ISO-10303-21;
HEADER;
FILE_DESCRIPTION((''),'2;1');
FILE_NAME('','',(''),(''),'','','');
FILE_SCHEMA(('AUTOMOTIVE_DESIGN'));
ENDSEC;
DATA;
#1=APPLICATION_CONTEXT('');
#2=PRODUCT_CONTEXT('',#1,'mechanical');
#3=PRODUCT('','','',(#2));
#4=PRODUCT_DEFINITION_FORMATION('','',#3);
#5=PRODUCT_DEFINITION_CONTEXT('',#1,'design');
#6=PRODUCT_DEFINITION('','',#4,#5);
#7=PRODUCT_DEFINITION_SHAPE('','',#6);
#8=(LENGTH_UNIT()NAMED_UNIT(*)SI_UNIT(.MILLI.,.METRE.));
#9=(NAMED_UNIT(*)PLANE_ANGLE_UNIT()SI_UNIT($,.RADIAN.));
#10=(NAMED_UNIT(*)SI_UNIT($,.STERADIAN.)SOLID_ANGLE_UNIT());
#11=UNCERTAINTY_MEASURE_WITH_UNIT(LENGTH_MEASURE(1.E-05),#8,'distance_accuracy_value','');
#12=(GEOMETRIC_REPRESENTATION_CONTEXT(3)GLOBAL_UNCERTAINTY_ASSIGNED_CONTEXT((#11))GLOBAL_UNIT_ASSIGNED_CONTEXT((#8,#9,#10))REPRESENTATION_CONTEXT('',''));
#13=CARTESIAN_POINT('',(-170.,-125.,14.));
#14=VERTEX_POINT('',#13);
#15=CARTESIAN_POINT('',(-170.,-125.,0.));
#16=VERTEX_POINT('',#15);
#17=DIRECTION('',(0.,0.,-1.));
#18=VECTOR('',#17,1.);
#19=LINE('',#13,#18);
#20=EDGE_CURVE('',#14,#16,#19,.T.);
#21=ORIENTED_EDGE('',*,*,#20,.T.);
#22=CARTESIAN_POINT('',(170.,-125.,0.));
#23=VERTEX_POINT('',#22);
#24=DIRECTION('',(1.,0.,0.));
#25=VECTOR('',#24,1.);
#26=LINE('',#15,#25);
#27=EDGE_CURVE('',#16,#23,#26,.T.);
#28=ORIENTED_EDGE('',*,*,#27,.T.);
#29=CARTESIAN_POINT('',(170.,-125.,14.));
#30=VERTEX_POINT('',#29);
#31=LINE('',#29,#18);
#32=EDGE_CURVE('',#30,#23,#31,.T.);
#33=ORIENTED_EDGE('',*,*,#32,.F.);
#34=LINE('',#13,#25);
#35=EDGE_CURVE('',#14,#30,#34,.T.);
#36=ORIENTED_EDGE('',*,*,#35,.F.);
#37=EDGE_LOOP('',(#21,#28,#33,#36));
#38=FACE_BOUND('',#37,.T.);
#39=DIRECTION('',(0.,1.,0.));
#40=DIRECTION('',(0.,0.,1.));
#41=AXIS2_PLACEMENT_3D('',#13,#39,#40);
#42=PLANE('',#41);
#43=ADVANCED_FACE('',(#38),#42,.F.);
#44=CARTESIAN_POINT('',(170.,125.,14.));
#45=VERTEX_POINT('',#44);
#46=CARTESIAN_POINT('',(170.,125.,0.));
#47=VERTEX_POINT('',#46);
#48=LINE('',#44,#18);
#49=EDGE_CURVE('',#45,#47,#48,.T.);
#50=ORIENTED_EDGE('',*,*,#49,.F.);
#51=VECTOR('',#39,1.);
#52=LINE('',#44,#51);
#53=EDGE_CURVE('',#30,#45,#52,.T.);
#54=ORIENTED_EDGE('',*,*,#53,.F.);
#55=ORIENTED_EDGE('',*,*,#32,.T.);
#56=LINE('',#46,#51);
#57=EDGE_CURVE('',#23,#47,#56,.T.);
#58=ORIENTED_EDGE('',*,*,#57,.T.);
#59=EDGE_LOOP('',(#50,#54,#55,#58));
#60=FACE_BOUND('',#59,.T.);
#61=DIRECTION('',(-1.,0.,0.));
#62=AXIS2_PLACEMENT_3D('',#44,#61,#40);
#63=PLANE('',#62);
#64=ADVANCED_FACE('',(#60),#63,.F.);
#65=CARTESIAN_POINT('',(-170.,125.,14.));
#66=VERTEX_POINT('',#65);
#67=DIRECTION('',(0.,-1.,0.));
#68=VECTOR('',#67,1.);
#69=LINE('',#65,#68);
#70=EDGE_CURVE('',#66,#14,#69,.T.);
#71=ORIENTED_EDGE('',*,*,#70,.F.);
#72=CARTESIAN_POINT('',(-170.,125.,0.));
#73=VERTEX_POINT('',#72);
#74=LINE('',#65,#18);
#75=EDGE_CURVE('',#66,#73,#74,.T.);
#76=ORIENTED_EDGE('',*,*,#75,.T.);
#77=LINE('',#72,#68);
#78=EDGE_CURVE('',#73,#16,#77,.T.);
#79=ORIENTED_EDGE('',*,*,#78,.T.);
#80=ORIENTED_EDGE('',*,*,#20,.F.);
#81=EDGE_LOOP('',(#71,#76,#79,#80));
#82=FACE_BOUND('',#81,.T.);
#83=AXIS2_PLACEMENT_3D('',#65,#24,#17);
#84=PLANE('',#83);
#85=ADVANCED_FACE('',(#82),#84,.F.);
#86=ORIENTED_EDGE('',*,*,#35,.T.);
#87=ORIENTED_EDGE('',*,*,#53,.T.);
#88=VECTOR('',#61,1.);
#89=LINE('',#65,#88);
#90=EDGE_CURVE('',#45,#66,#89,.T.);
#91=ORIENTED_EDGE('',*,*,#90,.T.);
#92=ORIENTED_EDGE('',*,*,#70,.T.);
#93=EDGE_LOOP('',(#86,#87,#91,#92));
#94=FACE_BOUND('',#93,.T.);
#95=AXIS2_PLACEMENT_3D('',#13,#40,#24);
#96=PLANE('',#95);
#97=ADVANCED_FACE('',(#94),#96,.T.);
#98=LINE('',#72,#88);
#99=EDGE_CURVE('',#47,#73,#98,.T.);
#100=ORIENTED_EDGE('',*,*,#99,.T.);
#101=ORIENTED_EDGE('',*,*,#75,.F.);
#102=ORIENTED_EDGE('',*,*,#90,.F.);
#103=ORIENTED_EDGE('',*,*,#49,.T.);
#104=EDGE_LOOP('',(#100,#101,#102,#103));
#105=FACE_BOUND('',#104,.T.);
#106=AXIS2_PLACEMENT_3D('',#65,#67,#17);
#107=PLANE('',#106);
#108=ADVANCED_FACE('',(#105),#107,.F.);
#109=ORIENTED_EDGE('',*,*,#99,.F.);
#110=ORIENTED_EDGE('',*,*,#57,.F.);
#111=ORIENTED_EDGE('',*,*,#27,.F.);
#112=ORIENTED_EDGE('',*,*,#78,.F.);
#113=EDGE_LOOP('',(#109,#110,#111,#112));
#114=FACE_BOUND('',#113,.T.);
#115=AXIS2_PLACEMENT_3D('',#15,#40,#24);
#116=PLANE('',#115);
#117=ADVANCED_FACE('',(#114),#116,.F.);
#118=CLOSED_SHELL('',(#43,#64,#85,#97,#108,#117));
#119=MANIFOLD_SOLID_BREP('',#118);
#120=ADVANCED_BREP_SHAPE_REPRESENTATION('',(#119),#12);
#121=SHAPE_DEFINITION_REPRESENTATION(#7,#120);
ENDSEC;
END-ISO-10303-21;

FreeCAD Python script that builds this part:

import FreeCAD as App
import Part
import Sketcher

V = App.Vector

doc = App.newDocument("Part")
body = doc.addObject("PartDesign::Body", "Body")

sketch1 = body.newObject("Sketcher::SketchObject", "Sketch")
sketch1.AttachmentSupport = (doc.getObject("XY_Plane"), [""])
sketch1.MapMode = "FlatFace"
sketch1.addGeometry(Part.LineSegment(V(-170, 125, 0), V(-170, -125, 0)), False)
sketch1.addGeometry(Part.LineSegment(V(-170, -125, 0), V(170, -125, 0)), False)
sketch1.addGeometry(Part.LineSegment(V(170, -125, 0), V(170, 125, 0)), False)
sketch1.addGeometry(Part.LineSegment(V(170, 125, 0), V(-170, 125, 0)), False)
sketch1.addConstraint(Sketcher.Constraint("Coincident", 0, 2, 1, 1))
sketch1.addConstraint(Sketcher.Constraint("Coincident", 1, 2, 2, 1))
sketch1.addConstraint(Sketcher.Constraint("Coincident", 2, 2, 3, 1))
sketch1.addConstraint(Sketcher.Constraint("Coincident", 3, 2, 0, 1))
sketch1.addConstraint(Sketcher.Constraint("Vertical", 0))
sketch1.addConstraint(Sketcher.Constraint("Horizontal", 1))
sketch1.addConstraint(Sketcher.Constraint("Vertical", 2))
sketch1.addConstraint(Sketcher.Constraint("Horizontal", 3))
sketch1.addConstraint(Sketcher.Constraint("Symmetric", 0, 2, 2, 2, -1, 1))
sketch1.addConstraint(Sketcher.Constraint("DistanceX", 1, 1, 1, 2, 340.0))
sketch1.addConstraint(Sketcher.Constraint("DistanceY", 0, 2, 0, 1, 250.0))
pad1 = body.newObject("PartDesign::Pad", "Pad")
pad1.Profile = sketch1
pad1.Length = 14

doc.recompute()
